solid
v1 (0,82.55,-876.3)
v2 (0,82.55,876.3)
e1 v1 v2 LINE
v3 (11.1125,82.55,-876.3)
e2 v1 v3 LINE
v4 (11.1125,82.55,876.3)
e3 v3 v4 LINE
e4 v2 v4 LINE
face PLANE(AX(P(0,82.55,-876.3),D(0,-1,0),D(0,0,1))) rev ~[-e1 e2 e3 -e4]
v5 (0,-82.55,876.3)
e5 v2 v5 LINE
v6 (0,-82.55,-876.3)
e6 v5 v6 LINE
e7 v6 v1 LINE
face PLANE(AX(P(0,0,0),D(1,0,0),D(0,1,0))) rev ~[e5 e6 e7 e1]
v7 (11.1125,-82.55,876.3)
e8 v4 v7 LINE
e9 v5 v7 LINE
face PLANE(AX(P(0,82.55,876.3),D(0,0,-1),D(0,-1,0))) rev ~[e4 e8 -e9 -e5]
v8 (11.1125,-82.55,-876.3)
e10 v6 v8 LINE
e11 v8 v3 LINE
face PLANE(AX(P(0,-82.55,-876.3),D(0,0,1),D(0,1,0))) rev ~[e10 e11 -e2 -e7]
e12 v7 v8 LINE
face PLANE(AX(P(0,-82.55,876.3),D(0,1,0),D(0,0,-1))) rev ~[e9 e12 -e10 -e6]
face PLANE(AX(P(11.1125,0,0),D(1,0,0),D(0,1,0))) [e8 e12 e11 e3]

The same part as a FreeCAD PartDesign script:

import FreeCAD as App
import Part
import Sketcher
Q = App.Units.Quantity


def add_polygon(sketch, points):
    """Adds a closed chain of lines whose ends are joined by coincident constraints."""
    first, n = sketch.GeometryCount, len(points)
    for a, b in zip(points, points[1:] + points[:1]):
        sketch.addGeometry(Part.LineSegment(App.Vector(*a, 0), App.Vector(*b, 0)), False)
    for i in range(n):
        sketch.addConstraint(Sketcher.Constraint("Coincident", first + i, 2, first + (i + 1) % n, 1))

doc = App.newDocument("Part")
body = doc.addObject("PartDesign::Body", "Body")

# Sketch on YZ plane
sketch1 = body.newObject("Sketcher::SketchObject", "Sketch")
sketch1.AttachmentSupport = (doc.getObject("YZ_Plane"), [""])
sketch1.MapMode = "FlatFace"
add_polygon(sketch1, [(83, 876), (-83, 876), (-83, -876), (83, -876)])  # lines 0-3
sketch1.addConstraint([
    Sketcher.Constraint("Horizontal", 0),
    Sketcher.Constraint("Vertical", 1),
    Sketcher.Constraint("Horizontal", 2),
    Sketcher.Constraint("Vertical", 3),
    Sketcher.Constraint("Symmetric", 0, 2, 2, 2, -1, 1),
    Sketcher.Constraint("DistanceY", 1, 2, 1, 1, Q("69 in")),
    Sketcher.Constraint("DistanceX", 0, 2, 0, 1, Q("6.5 in")),
])
pad1 = body.newObject("PartDesign::Pad", "Pad")
pad1.Profile = sketch1
pad1.Length = Q("0.4375 in")

doc.recompute()
